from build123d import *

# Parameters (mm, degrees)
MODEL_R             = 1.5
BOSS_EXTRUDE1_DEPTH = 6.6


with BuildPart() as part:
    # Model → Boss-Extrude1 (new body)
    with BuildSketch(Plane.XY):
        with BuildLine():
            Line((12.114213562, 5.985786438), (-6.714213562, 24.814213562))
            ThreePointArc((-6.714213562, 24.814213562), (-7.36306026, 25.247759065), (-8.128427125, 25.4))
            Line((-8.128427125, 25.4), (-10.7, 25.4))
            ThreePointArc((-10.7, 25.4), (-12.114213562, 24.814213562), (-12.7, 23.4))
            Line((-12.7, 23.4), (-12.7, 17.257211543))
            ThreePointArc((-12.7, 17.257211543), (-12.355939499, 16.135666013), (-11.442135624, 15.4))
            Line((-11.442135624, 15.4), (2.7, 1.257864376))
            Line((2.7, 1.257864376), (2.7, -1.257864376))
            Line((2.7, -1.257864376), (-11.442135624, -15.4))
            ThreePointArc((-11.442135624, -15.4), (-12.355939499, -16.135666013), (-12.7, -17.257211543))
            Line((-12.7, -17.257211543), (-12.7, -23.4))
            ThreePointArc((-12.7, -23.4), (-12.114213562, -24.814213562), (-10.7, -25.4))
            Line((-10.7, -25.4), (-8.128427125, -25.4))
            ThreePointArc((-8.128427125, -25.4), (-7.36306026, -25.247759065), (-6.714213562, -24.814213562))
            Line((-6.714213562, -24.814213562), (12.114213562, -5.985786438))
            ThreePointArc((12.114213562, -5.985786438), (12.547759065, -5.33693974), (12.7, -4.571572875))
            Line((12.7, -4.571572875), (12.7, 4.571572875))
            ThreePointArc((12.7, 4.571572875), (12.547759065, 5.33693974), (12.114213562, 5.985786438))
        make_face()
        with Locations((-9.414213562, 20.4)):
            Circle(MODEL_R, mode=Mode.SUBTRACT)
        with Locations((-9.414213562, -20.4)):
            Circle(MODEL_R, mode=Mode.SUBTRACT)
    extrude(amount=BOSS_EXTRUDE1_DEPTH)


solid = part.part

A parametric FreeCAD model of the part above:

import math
import FreeCAD as App
import Part
import Sketcher
Q = App.Units.Quantity

doc = App.newDocument("Part")
body = doc.addObject("PartDesign::Body", "Body")

sketch1 = body.newObject("Sketcher::SketchObject", "Sketch")
sketch1.AttachmentSupport = (doc.getObject("XY_Plane"), [""])
sketch1.MapMode = "FlatFace"
sketch1.addGeometry([
    Part.LineSegment(App.Vector(12.1, 6, 0), App.Vector(-6.7, 24.8, 0)),
    Part.ArcOfCircle(Part.Circle(App.Vector(-8.1, 23.4, 0), App.Vector(0, 0, 1), 2), math.radians(45), math.radians(90)),
    Part.LineSegment(App.Vector(-8.1, 25.4, 0), App.Vector(-10.7, 25.4, 0)),
    Part.ArcOfCircle(Part.Circle(App.Vector(-10.7, 23.4, 0), App.Vector(0, 0, 1), 2), math.radians(90), math.radians(180)),
    Part.LineSegment(App.Vector(-12.7, 23.4, 0), App.Vector(-12.7, 17.3, 0)),
    Part.ArcOfCircle(Part.Circle(App.Vector(-10.7, 17.3, 0), App.Vector(0, 0, 1), 2), math.radians(180), math.radians(248)),
    Part.LineSegment(App.Vector(-11.4, 15.4, 0), App.Vector(2.7, 1.3, 0)),
    Part.LineSegment(App.Vector(2.7, 1.3, 0), App.Vector(2.7, -1.3, 0)),
    Part.LineSegment(App.Vector(2.7, -1.3, 0), App.Vector(-11.4, -15.4, 0)),
    Part.ArcOfCircle(Part.Circle(App.Vector(-10.7, -17.3, 0), App.Vector(0, 0, 1), 2), math.radians(112), math.radians(180)),
    Part.LineSegment(App.Vector(-12.7, -17.3, 0), App.Vector(-12.7, -23.4, 0)),
    Part.ArcOfCircle(Part.Circle(App.Vector(-10.7, -23.4, 0), App.Vector(0, 0, 1), 2), math.radians(-180), math.radians(-90)),
    Part.LineSegment(App.Vector(-10.7, -25.4, 0), App.Vector(-8.1, -25.4, 0)),
    Part.ArcOfCircle(Part.Circle(App.Vector(-8.1, -23.4, 0), App.Vector(0, 0, 1), 2), math.radians(-90), math.radians(-45)),
    Part.LineSegment(App.Vector(-6.7, -24.8, 0), App.Vector(12.1, -6, 0)),
    Part.ArcOfCircle(Part.Circle(App.Vector(10.7, -4.6, 0), App.Vector(0, 0, 1), 2), math.radians(-45), math.radians(0)),
    Part.LineSegment(App.Vector(12.7, -4.6, 0), App.Vector(12.7, 4.6, 0)),
    Part.ArcOfCircle(Part.Circle(App.Vector(10.7, 4.6, 0), App.Vector(0, 0, 1), 2), math.radians(0), math.radians(45)),
    Part.Circle(App.Vector(-9.4, -20.4, 0), App.Vector(0, 0, 1), 1.5),
    Part.Circle(App.Vector(-9.4, 20.4, 0), App.Vector(0, 0, 1), 1.5),
], False)
sketch1.addConstraint([
    Sketcher.Constraint("Tangent", 0, 2, 1, 1),
    Sketcher.Constraint("Tangent", 1, 2, 2, 1),
    Sketcher.Constraint("Tangent", 2, 2, 3, 1),
    Sketcher.Constraint("Tangent", 3, 2, 4, 1),
    Sketcher.Constraint("Tangent", 4, 2, 5, 1),
    Sketcher.Constraint("Coincident", 5, 2, 6, 1),
    Sketcher.Constraint("Coincident", 6, 2, 7, 1),
    Sketcher.Constraint("Coincident", 7, 2, 8, 1),
    Sketcher.Constraint("Coincident", 8, 2, 9, 1),
    Sketcher.Constraint("Tangent", 9, 2, 10, 1),
    Sketcher.Constraint("Tangent", 10, 2, 11, 1),
    Sketcher.Constraint("Tangent", 11, 2, 12, 1),
    Sketcher.Constraint("Tangent", 12, 2, 13, 1),
    Sketcher.Constraint("Tangent", 13, 2, 14, 1),
    Sketcher.Constraint("Tangent", 14, 2, 15, 1),
    Sketcher.Constraint("Tangent", 15, 2, 16, 1),
    Sketcher.Constraint("Tangent", 16, 2, 17, 1),
    Sketcher.Constraint("Tangent", 17, 2, 0, 1),
    Sketcher.Constraint("Horizontal", 2),
    Sketcher.Constraint("Vertical", 4),
    Sketcher.Constraint("Vertical", 7),
    Sketcher.Constraint("Vertical", 10),
    Sketcher.Constraint("Horizontal", 12),
    Sketcher.Constraint("Vertical", 16),
    Sketcher.Constraint("Equal", 1, 3),
    Sketcher.Constraint("Equal", 3, 5),
    Sketcher.Constraint("Equal", 5, 9),
    Sketcher.Constraint("Equal", 9, 11),
    Sketcher.Constraint("Equal", 11, 13),
    Sketcher.Constraint("Equal", 13, 15),
    Sketcher.Constraint("Equal", 15, 17),
    Sketcher.Constraint("Equal", 18, 19),
    Sketcher.Constraint("Symmetric", 5, 3, 9, 3, -1),
    Sketcher.Constraint("Symmetric", 1, 3, 13, 3, -1),
    Sketcher.Constraint("Symmetric", 18, 3, 19, 3, -1),
    Sketcher.Constraint("Parallel", 0, 6),
    Sketcher.Constraint("Perpendicular", 6, 8),
    Sketcher.Constraint("Parallel", 8, 14),
    Sketcher.Constraint("Vertical", 5, 2, 8, 2),
    Sketcher.Constraint("Vertical", 0, 2, 13, 2),
    Sketcher.Constraint("Diameter", 18, Q("3 mm")),
    Sketcher.Constraint("Radius", 1, Q("2 mm")),
    Sketcher.Constraint("Distance", 6, Q("20 mm")),
    Sketcher.Constraint("DistanceY", 11, 3, 18, 3, Q("3 mm")),
    Sketcher.Constraint("DistanceY", 5, 2, 19, 3, Q("5 mm")),
    Sketcher.Constraint("DistanceX", 6, 2, 17, 3, Q("8 mm")),
    Sketcher.Constraint("DistanceY", -1, 1, 1, 3, Q("23.4 mm")),
    Sketcher.Constraint("DistanceX", 3, 3, -1, 1, Q("10.7 mm")),
    Sketcher.Constraint("DistanceX", -1, 1, 15, 3, Q("10.7 mm")),
    Sketcher.Constraint("DistanceX", 19, 3, 0, 2, Q("2.7 mm")),
    Sketcher.Constraint("DistanceX", 2, 2, 2, 1, Q("2.571573 mm")),
])
pad1 = body.newObject("PartDesign::Pad", "Pad")
pad1.Profile = sketch1
pad1.Length = 6.6

doc.recompute()
